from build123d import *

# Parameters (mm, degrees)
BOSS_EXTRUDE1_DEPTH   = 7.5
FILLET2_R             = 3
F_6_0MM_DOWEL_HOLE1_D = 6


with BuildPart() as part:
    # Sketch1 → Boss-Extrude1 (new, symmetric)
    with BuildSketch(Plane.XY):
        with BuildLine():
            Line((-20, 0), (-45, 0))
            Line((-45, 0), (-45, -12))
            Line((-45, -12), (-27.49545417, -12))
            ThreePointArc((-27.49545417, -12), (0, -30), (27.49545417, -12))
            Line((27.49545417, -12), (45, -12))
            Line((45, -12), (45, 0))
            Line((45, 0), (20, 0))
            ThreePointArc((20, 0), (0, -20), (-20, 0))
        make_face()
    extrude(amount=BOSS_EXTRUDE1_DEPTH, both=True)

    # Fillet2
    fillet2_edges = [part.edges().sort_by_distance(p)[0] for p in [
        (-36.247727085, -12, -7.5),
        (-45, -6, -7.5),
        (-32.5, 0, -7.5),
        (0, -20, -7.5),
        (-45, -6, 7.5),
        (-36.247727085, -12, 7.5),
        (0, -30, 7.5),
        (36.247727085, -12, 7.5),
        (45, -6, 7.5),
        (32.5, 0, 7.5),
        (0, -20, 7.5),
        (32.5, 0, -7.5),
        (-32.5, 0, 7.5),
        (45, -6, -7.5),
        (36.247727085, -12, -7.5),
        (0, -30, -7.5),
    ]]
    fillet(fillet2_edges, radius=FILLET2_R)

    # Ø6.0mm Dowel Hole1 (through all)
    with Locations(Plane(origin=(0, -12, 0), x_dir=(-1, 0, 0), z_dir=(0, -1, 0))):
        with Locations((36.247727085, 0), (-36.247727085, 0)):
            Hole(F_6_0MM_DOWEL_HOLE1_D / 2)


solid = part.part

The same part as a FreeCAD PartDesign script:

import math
import FreeCAD as App
import Part
import Sketcher

V = App.Vector
Q = App.Units.Quantity


def edges_at(feature, points):
    """Names of the edges that pass closest to the given points."""
    edges = feature.Shape.Edges
    near = lambda p: min(range(len(edges)), key=lambda i: edges[i].distToShape(Part.Vertex(*p))[0])
    return sorted({f"Edge{near(p) + 1}" for p in points})

doc = App.newDocument("Part")
params = doc.addObject("Spreadsheet::Sheet", "Params")
for row, (alias, value) in enumerate([
    ("sketch1_radius", "30 mm"),
    ("sketch1_radius2", "20 mm"),
    ("sketch1_width", "25 mm"),
    ("sketch1_height", "12 mm"),
    ("pad1_length", "15 mm"),
    ("fillet_radius", "3 mm"),
    ("sketch2_diameter", "6 mm"),
    ("hole_diameter", "6 mm"),
], start=1):
    params.set(f"A{row}", alias)
    params.set(f"B{row}", "=" + value)
    params.setAlias(f"B{row}", alias)

body = doc.addObject("PartDesign::Body", "Body")

# Sketch on XY plane
sketch1 = doc.addObject("Sketcher::SketchObject", "Sketch")
body.addObject(sketch1)
sketch1.AttachmentSupport = (doc.XY_Plane, [""])
sketch1.MapMode = "FlatFace"
sketch1.addGeometry(Part.LineSegment(V(-20, 0, 0), V(-45, 0, 0)), False)
sketch1.addGeometry(Part.LineSegment(V(-45, 0, 0), V(-45, -12, 0)), False)
sketch1.addGeometry(Part.LineSegment(V(-45, -12, 0), V(-27.495454, -12, 0)), False)
sketch1.addGeometry(Part.ArcOfCircle(Part.Circle(V(0, 0, 0), V(0, 0, 1), 30), math.radians(-156.421822), math.radians(-23.578178)), False)
sketch1.addGeometry(Part.LineSegment(V(27.495454, -12, 0), V(45, -12, 0)), False)
sketch1.addGeometry(Part.LineSegment(V(45, -12, 0), V(45, 0, 0)), False)
sketch1.addGeometry(Part.LineSegment(V(45, 0, 0), V(20, 0, 0)), False)
sketch1.addGeometry(Part.ArcOfCircle(Part.Circle(V(0, 0, 0), V(0, 0, 1), 20), math.radians(180), math.radians(360)), False)
sketch1.addConstraint(Sketcher.Constraint("Coincident", 0, 2, 1, 1))
sketch1.addConstraint(Sketcher.Constraint("Coincident", 1, 2, 2, 1))
sketch1.addConstraint(Sketcher.Constraint("Coincident", 2, 2, 3, 1))
sketch1.addConstraint(Sketcher.Constraint("Coincident", 3, 2, 4, 1))
sketch1.addConstraint(Sketcher.Constraint("Coincident", 4, 2, 5, 1))
sketch1.addConstraint(Sketcher.Constraint("Coincident", 5, 2, 6, 1))
sketch1.addConstraint(Sketcher.Constraint("Coincident", 6, 2, 7, 2))
sketch1.addConstraint(Sketcher.Constraint("Coincident", 7, 1, 0, 1))
sketch1.addConstraint(Sketcher.Constraint("Horizontal", 0))
sketch1.addConstraint(Sketcher.Constraint("Vertical", 1))
sketch1.addConstraint(Sketcher.Constraint("Horizontal", 2))
sketch1.addConstraint(Sketcher.Constraint("Horizontal", 4))
sketch1.addConstraint(Sketcher.Constraint("Vertical", 5))
sketch1.addConstraint(Sketcher.Constraint("Horizontal", 6))
sketch1.addConstraint(Sketcher.Constraint("Coincident", 3, 3, -1, 1))
sketch1.addConstraint(Sketcher.Constraint("Coincident", 7, 3, -1, 1))
sketch1.addConstraint(Sketcher.Constraint("Symmetric", 0, 2, 5, 2, -1, 1))
sketch1.addConstraint(Sketcher.Constraint("PointOnObject", 0, 2, -1))
sketch1.addConstraint(Sketcher.Constraint("Horizontal", 2, 2, 3, 2))
sketch1.addConstraint(Sketcher.Constraint("Radius", 3, Q("30 mm")))
sketch1.addConstraint(Sketcher.Constraint("Radius", 7, Q("20 mm")))
sketch1.addConstraint(Sketcher.Constraint("DistanceX", 0, 2, 0, 1, Q("25 mm")))
sketch1.addConstraint(Sketcher.Constraint("DistanceY", 1, 2, 1, 1, Q("12 mm")))
sketch1.setExpression("Constraints[19]", "Params.sketch1_radius")
sketch1.setExpression("Constraints[20]", "Params.sketch1_radius2")
sketch1.setExpression("Constraints[21]", "Params.sketch1_width")
sketch1.setExpression("Constraints[22]", "Params.sketch1_height")
pad1 = doc.addObject("PartDesign::Pad", "Pad")
body.addObject(pad1)
pad1.Profile = sketch1
pad1.setExpression("Length", "Params.pad1_length")
pad1.Midplane = True
doc.recompute()

fillet = doc.addObject("PartDesign::Fillet", "Fillet")
body.addObject(fillet)
fillet.Base = (pad1, edges_at(pad1, [
    (-36.248, -12, -7.5),
    (-45, -6, -7.5),
    (-32.5, 0, -7.5),
    (0, -20, -7.5),
    (-45, -6, 7.5),
    (-36.248, -12, 7.5),
    (0, -30, 7.5),
    (36.248, -12, 7.5),
    (45, -6, 7.5),
    (32.5, 0, 7.5),
    (0, -20, 7.5),
    (32.5, 0, -7.5),
    (-32.5, 0, 7.5),
    (45, -6, -7.5),
    (36.248, -12, -7.5),
    (0, -30, -7.5),
]))
fillet.setExpression("Radius", "Params.fillet_radius")

# Sketch on XZ plane
sketch2 = doc.addObject("Sketcher::SketchObject", "Sketch001")
body.addObject(sketch2)
sketch2.AttachmentSupport = (doc.XZ_Plane, [""])
sketch2.MapMode = "FlatFace"
sketch2.AttachmentOffset = App.Placement(V(0, 0, 12), App.Rotation())
sketch2.addGeometry(Part.Circle(V(-36.247727, 0, 0), V(0, 0, 1), 3), False)
sketch2.addGeometry(Part.Circle(V(36.247727, 0, 0), V(0, 0, 1), 3), False)
sketch2.addConstraint(Sketcher.Constraint("Equal", 0, 1))
sketch2.addConstraint(Sketcher.Constraint("Symmetric", 0, 3, 1, 3, -1, 1))
sketch2.addConstraint(Sketcher.Constraint("PointOnObject", 0, 3, -1))
sketch2.addConstraint(Sketcher.Constraint("Diameter", 0, Q("6 mm")))
sketch2.addConstraint(Sketcher.Constraint("DistanceX", 0, 3, -1, 1, Q("36.247727 mm")))
sketch2.setExpression("Constraints[3]", "Params.sketch2_diameter")
doc.recompute()
hole = doc.addObject("PartDesign::Hole", "Hole")
body.addObject(hole)
hole.Profile = sketch2
hole.ThreadType = "None"
hole.setExpression("Diameter", "Params.hole_diameter")
hole.DepthType = "ThroughAll"

doc.recompute()
